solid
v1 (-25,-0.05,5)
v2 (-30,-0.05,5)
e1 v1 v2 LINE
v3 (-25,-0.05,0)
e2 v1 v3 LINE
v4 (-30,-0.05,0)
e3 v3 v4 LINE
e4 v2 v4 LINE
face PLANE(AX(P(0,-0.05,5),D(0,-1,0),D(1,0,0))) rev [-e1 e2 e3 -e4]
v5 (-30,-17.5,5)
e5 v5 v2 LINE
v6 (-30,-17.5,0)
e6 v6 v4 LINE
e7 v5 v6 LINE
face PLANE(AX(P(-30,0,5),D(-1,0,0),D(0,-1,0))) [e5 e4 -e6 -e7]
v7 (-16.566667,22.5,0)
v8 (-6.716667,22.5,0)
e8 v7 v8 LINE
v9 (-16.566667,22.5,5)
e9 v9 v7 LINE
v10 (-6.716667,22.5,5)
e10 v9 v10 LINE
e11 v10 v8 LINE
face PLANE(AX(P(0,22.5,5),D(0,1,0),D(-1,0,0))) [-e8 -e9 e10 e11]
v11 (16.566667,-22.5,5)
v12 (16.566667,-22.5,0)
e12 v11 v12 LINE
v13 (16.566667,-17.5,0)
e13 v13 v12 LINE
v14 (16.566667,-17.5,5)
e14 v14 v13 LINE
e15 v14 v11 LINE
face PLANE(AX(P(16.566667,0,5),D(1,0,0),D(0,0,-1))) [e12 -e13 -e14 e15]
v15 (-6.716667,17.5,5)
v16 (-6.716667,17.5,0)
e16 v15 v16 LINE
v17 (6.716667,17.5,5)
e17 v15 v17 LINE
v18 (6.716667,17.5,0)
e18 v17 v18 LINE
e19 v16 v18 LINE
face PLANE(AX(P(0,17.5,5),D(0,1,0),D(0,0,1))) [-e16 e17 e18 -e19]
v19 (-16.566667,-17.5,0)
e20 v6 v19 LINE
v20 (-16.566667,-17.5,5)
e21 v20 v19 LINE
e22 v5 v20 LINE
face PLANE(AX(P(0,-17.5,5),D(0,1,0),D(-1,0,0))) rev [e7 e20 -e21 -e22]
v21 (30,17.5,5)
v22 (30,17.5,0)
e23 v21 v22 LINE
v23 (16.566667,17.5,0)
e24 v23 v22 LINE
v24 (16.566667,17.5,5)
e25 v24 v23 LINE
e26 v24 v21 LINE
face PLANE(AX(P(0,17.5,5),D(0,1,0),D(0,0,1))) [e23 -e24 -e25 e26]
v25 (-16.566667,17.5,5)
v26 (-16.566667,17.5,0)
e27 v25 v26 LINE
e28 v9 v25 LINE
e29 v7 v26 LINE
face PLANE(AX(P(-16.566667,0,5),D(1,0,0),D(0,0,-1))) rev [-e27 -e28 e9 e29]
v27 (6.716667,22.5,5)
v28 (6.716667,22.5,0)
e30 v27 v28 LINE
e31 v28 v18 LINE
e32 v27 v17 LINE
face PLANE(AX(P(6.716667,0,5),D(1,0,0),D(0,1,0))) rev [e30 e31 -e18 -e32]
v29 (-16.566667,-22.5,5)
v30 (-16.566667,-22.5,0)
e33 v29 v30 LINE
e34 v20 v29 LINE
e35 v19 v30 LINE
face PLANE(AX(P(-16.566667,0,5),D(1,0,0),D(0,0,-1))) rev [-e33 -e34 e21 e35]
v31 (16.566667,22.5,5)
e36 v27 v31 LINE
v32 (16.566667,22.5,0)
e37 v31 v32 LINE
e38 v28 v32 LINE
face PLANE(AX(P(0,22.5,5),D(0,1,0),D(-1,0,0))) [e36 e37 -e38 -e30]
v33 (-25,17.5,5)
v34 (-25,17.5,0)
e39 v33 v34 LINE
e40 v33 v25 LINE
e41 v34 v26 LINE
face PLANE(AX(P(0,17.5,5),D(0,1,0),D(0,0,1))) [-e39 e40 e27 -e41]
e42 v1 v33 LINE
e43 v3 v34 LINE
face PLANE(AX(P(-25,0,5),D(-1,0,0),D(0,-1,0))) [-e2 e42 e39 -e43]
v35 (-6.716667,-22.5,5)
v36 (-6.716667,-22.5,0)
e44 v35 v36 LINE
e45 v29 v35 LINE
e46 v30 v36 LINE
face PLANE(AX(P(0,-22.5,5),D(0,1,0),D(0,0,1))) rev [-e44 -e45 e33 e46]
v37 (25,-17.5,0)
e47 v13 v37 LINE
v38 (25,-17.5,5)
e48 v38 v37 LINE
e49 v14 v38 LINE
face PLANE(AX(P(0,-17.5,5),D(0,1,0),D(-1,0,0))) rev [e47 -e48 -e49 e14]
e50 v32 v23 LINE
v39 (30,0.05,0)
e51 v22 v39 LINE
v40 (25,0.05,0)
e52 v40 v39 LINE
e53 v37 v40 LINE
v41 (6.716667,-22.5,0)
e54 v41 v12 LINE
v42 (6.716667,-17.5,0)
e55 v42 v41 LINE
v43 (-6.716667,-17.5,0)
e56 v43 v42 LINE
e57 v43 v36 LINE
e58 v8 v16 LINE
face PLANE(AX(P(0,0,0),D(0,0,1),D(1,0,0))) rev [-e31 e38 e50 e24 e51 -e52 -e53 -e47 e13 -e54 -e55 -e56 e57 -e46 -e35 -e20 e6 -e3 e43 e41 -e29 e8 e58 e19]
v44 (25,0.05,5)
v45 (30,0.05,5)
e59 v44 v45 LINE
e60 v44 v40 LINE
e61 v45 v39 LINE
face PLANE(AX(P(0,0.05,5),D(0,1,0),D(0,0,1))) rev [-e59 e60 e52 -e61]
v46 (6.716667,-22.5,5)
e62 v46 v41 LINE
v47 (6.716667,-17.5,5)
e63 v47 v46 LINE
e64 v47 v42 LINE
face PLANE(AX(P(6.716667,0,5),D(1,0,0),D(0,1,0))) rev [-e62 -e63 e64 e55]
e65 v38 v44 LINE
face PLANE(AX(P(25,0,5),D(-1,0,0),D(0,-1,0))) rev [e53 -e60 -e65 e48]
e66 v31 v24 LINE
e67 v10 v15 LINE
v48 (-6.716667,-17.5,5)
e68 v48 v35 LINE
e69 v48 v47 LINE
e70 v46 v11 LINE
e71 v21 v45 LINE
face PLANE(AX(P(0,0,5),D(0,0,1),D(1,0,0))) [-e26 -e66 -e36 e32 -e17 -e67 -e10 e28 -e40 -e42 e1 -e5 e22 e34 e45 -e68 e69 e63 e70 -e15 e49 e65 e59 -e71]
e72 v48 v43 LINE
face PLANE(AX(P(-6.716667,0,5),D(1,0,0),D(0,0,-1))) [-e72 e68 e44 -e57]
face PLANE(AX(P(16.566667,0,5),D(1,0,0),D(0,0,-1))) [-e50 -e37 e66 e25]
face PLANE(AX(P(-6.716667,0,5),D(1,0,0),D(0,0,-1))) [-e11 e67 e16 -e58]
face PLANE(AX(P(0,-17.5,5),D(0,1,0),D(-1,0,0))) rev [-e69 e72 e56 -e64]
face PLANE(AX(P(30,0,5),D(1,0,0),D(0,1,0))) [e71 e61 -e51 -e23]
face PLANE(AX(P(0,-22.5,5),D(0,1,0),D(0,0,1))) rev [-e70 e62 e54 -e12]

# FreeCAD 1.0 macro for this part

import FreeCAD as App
import Part
import Sketcher
Q = App.Units.Quantity

doc = App.newDocument("Part")
body = doc.addObject("PartDesign::Body", "Body")

# Sketch on XY plane
sketch1 = body.newObject("Sketcher::SketchObject", "Sketch")
sketch1.AttachmentSupport = (doc.getObject("XY_Plane"), [""])
sketch1.MapMode = "FlatFace"
sketch1.addGeometry([
    Part.LineSegment(App.Vector(-25, 18, 0), App.Vector(-25, 0, 0)),  # 0
    Part.LineSegment(App.Vector(-25, 0, 0), App.Vector(-30, 0, 0)),  # 1
    Part.LineSegment(App.Vector(-30, 0, 0), App.Vector(-30, -18, 0)),  # 2
    Part.LineSegment(App.Vector(-30, -18, 0), App.Vector(-17, -18, 0)),  # 3
    Part.LineSegment(App.Vector(-17, -18, 0), App.Vector(-17, -22, 0)),  # 4
    Part.LineSegment(App.Vector(-17, -22, 0), App.Vector(-7, -22, 0)),  # 5
    Part.LineSegment(App.Vector(-7, -22, 0), App.Vector(-7, -18, 0)),  # 6
    Part.LineSegment(App.Vector(-7, -18, 0), App.Vector(7, -18, 0)),  # 7
    Part.LineSegment(App.Vector(7, -18, 0), App.Vector(7, -22, 0)),  # 8
    Part.LineSegment(App.Vector(7, -22, 0), App.Vector(17, -22, 0)),  # 9
    Part.LineSegment(App.Vector(17, -22, 0), App.Vector(17, -18, 0)),  # 10
    Part.LineSegment(App.Vector(17, -18, 0), App.Vector(25, -18, 0)),  # 11
    Part.LineSegment(App.Vector(25, -18, 0), App.Vector(25, 0, 0)),  # 12
    Part.LineSegment(App.Vector(25, 0, 0), App.Vector(30, 0, 0)),  # 13
    Part.LineSegment(App.Vector(30, 0, 0), App.Vector(30, 18, 0)),  # 14
    Part.LineSegment(App.Vector(30, 18, 0), App.Vector(17, 18, 0)),  # 15
    Part.LineSegment(App.Vector(17, 18, 0), App.Vector(17, 22, 0)),  # 16
    Part.LineSegment(App.Vector(17, 22, 0), App.Vector(7, 22, 0)),  # 17
    Part.LineSegment(App.Vector(7, 22, 0), App.Vector(7, 18, 0)),  # 18
    Part.LineSegment(App.Vector(7, 18, 0), App.Vector(-7, 18, 0)),  # 19
    Part.LineSegment(App.Vector(-7, 18, 0), App.Vector(-7, 22, 0)),  # 20
    Part.LineSegment(App.Vector(-7, 22, 0), App.Vector(-17, 22, 0)),  # 21
    Part.LineSegment(App.Vector(-17, 22, 0), App.Vector(-17, 18, 0)),  # 22
    Part.LineSegment(App.Vector(-17, 18, 0), App.Vector(-25, 18, 0)),  # 23
], False)
sketch1.addConstraint([
    Sketcher.Constraint("Coincident", 0, 2, 1, 1),
    Sketcher.Constraint("Coincident", 1, 2, 2, 1),
    Sketcher.Constraint("Coincident", 2, 2, 3, 1),
    Sketcher.Constraint("Coincident", 3, 2, 4, 1),
    Sketcher.Constraint("Coincident", 4, 2, 5, 1),
    Sketcher.Constraint("Coincident", 5, 2, 6, 1),
    Sketcher.Constraint("Coincident", 6, 2, 7, 1),
    Sketcher.Constraint("Coincident", 7, 2, 8, 1),
    Sketcher.Constraint("Coincident", 8, 2, 9, 1),
    Sketcher.Constraint("Coincident", 9, 2, 10, 1),
    Sketcher.Constraint("Coincident", 10, 2, 11, 1),
    Sketcher.Constraint("Coincident", 11, 2, 12, 1),
    Sketcher.Constraint("Coincident", 12, 2, 13, 1),
    Sketcher.Constraint("Coincident", 13, 2, 14, 1),
    Sketcher.Constraint("Coincident", 14, 2, 15, 1),
    Sketcher.Constraint("Coincident", 15, 2, 16, 1),
    Sketcher.Constraint("Coincident", 16, 2, 17, 1),
    Sketcher.Constraint("Coincident", 17, 2, 18, 1),
    Sketcher.Constraint("Coincident", 18, 2, 19, 1),
    Sketcher.Constraint("Coincident", 19, 2, 20, 1),
    Sketcher.Constraint("Coincident", 20, 2, 21, 1),
    Sketcher.Constraint("Coincident", 21, 2, 22, 1),
    Sketcher.Constraint("Coincident", 22, 2, 23, 1),
    Sketcher.Constraint("Coincident", 23, 2, 0, 1),
    Sketcher.Constraint("Vertical", 0),
    Sketcher.Constraint("Horizontal", 1),
    Sketcher.Constraint("Vertical", 2),
    Sketcher.Constraint("Horizontal", 3),
    Sketcher.Constraint("Vertical", 4),
    Sketcher.Constraint("Horizontal", 5),
    Sketcher.Constraint("Vertical", 6),
    Sketcher.Constraint("Horizontal", 7),
    Sketcher.Constraint("Vertical", 8),
    Sketcher.Constraint("Horizontal", 9),
    Sketcher.Constraint("Vertical", 10),
    Sketcher.Constraint("Horizontal", 11),
    Sketcher.Constraint("Vertical", 12),
    Sketcher.Constraint("Horizontal", 13),
    Sketcher.Constraint("Vertical", 14),
    Sketcher.Constraint("Horizontal", 15),
    Sketcher.Constraint("Vertical", 16),
    Sketcher.Constraint("Horizontal", 17),
    Sketcher.Constraint("Vertical", 18),
    Sketcher.Constraint("Horizontal", 19),
    Sketcher.Constraint("Vertical", 20),
    Sketcher.Constraint("Horizontal", 21),
    Sketcher.Constraint("Vertical", 22),
    Sketcher.Constraint("Horizontal", 23),
    Sketcher.Constraint("Symmetric", 0, 2, 12, 2, -1, 1),
    Sketcher.Constraint("Symmetric", 2, 2, 14, 2, -1, 1),
    Sketcher.Constraint("Symmetric", 4, 2, 16, 2, -1, 1),
    Sketcher.Constraint("Symmetric", 6, 2, 18, 2, -1, 1),
    Sketcher.Constraint("Symmetric", 8, 2, 20, 2, -1, 1),
    Sketcher.Constraint("Symmetric", 10, 2, 22, 2, -1, 1),
    Sketcher.Constraint("Symmetric", 5, 2, 8, 2, -2),
    Sketcher.Constraint("Symmetric", 3, 2, 10, 2, -2),
    Sketcher.Constraint("Horizontal", 3, 2, 6, 2),
    Sketcher.Constraint("Equal", 3, 7),
    Sketcher.Constraint("Equal", 13, 4),
    Sketcher.Constraint("DistanceX", 1, 2, 1, 1, Q("5 mm")),
    Sketcher.Constraint("DistanceX", 0, 2, -1, 1, Q("25 mm")),
    Sketcher.Constraint("DistanceY", 11, 2, 14, 2, Q("35 mm")),
    Sketcher.Constraint("DistanceX", 5, 1, 5, 2, Q("9.85 mm")),
    Sketcher.Constraint("DistanceY", 0, 2, 0, 1, Q("17.55 mm")),
])
pad1 = body.newObject("PartDesign::Pad", "Pad")
pad1.Profile = sketch1
pad1.Length = 5

doc.recompute()
